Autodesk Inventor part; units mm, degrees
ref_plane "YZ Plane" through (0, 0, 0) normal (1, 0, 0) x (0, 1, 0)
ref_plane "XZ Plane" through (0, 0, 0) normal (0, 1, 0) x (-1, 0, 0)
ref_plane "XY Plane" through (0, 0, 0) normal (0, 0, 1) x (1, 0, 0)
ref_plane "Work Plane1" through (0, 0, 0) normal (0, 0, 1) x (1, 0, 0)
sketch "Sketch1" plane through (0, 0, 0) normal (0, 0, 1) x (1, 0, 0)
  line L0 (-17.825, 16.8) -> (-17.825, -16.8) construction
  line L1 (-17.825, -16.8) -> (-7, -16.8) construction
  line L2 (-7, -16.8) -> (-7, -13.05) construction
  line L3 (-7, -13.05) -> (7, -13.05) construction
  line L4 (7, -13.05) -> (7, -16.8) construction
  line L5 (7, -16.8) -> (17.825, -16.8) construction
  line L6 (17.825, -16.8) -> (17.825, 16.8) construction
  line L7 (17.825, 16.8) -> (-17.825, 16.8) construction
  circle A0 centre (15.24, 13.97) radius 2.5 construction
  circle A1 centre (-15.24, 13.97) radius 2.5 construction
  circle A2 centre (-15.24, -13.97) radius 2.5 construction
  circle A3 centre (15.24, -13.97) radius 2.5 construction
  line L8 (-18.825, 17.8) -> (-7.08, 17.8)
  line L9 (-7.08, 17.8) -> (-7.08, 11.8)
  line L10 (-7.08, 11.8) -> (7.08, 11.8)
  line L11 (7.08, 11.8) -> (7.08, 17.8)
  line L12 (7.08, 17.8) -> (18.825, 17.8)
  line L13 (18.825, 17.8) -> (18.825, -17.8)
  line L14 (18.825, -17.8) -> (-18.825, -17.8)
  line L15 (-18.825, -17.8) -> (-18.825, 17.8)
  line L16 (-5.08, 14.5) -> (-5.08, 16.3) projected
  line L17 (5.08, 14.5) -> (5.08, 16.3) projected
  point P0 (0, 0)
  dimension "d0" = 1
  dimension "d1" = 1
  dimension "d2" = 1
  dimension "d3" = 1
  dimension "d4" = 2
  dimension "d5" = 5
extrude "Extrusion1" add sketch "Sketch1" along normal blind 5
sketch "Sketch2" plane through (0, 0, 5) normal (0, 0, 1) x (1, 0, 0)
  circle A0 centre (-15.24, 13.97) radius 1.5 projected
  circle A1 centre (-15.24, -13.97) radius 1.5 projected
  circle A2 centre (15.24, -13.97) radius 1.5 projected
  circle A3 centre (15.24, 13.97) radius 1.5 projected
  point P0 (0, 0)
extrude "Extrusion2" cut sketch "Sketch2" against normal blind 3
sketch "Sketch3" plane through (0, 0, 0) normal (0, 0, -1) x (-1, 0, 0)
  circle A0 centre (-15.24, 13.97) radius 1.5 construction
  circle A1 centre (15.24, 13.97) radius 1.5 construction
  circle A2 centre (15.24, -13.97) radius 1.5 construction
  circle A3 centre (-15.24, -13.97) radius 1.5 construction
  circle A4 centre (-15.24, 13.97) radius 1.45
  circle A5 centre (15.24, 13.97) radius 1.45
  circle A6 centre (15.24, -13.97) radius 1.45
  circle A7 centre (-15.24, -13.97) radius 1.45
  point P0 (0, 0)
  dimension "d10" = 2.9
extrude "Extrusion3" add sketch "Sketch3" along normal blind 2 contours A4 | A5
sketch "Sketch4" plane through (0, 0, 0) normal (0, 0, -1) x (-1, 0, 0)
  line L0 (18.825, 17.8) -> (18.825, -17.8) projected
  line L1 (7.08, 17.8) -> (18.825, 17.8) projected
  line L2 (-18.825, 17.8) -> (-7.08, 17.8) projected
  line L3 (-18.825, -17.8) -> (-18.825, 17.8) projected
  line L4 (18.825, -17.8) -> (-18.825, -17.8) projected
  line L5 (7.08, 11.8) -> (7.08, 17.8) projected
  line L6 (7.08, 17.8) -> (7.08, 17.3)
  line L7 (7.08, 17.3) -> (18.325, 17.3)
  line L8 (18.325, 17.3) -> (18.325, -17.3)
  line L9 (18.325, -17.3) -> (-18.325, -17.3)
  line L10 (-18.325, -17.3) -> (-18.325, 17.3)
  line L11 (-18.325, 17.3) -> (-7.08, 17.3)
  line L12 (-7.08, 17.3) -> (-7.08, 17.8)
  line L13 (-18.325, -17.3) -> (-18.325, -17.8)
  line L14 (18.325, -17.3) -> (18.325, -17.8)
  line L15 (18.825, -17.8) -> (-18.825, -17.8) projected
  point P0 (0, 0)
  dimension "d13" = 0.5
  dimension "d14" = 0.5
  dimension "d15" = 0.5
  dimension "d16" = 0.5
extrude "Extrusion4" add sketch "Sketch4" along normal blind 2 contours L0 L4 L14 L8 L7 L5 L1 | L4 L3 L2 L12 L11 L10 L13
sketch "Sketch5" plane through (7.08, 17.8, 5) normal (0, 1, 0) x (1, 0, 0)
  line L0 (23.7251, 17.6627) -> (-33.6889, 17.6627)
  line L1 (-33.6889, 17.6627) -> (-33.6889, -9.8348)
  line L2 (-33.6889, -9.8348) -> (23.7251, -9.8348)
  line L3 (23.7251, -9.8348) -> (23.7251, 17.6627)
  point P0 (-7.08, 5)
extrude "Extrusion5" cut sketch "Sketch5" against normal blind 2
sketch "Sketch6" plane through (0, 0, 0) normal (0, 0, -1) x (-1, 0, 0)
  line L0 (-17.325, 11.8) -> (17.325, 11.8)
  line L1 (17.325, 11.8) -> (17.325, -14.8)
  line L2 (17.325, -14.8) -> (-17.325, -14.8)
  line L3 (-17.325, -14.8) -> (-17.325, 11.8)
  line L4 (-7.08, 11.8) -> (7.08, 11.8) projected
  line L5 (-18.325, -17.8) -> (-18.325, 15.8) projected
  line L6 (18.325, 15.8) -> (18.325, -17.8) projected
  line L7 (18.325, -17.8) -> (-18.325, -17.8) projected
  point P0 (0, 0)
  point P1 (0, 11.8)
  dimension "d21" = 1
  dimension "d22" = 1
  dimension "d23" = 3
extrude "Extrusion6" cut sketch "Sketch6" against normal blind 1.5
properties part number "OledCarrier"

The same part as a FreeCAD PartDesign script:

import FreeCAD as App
import Part
import Sketcher
Q = App.Units.Quantity

doc = App.newDocument("Part")
body = doc.addObject("PartDesign::Body", "Body")

# Sketch on XY plane
sketch1 = body.newObject("Sketcher::SketchObject", "Sketch")
sketch1.AttachmentSupport = (doc.getObject("XY_Plane"), [""])
sketch1.MapMode = "FlatFace"
sketch1.addGeometry([
    Part.LineSegment(App.Vector(-7, 18, 0), App.Vector(-19, 18, 0)),  # 0
    Part.LineSegment(App.Vector(-19, 18, 0), App.Vector(-19, -18, 0)),  # 1
    Part.LineSegment(App.Vector(-19, -18, 0), App.Vector(19, -18, 0)),  # 2
    Part.LineSegment(App.Vector(19, -18, 0), App.Vector(19, 18, 0)),  # 3
    Part.LineSegment(App.Vector(19, 18, 0), App.Vector(7, 18, 0)),  # 4
    Part.LineSegment(App.Vector(7, 18, 0), App.Vector(7, 12, 0)),  # 5
    Part.LineSegment(App.Vector(7, 12, 0), App.Vector(-7, 12, 0)),  # 6
    Part.LineSegment(App.Vector(-7, 12, 0), App.Vector(-7, 18, 0)),  # 7
], False)
sketch1.addConstraint([
    Sketcher.Constraint("Coincident", 0, 2, 1, 1),
    Sketcher.Constraint("Coincident", 1, 2, 2, 1),
    Sketcher.Constraint("Coincident", 2, 2, 3, 1),
    Sketcher.Constraint("Coincident", 3, 2, 4, 1),
    Sketcher.Constraint("Coincident", 4, 2, 5, 1),
    Sketcher.Constraint("Coincident", 5, 2, 6, 1),
    Sketcher.Constraint("Coincident", 6, 2, 7, 1),
    Sketcher.Constraint("Coincident", 7, 2, 0, 1),
    Sketcher.Constraint("Horizontal", 0),
    Sketcher.Constraint("Vertical", 1),
    Sketcher.Constraint("Horizontal", 2),
    Sketcher.Constraint("Vertical", 3),
    Sketcher.Constraint("Horizontal", 4),
    Sketcher.Constraint("Vertical", 5),
    Sketcher.Constraint("Horizontal", 6),
    Sketcher.Constraint("Vertical", 7),
    Sketcher.Constraint("Symmetric", 0, 2, 2, 2, -1, 1),
    Sketcher.Constraint("Symmetric", 4, 2, 7, 2, -2),
    Sketcher.Constraint("DistanceY", 5, 2, 5, 1, Q("6 mm")),
    Sketcher.Constraint("DistanceY", 1, 2, 1, 1, Q("35.6 mm")),
    Sketcher.Constraint("DistanceX", 2, 1, 2, 2, Q("37.65 mm")),
    Sketcher.Constraint("DistanceX", 6, 2, 6, 1, Q("14.16 mm")),
])
pad1 = body.newObject("PartDesign::Pad", "Pad")
pad1.Profile = sketch1
pad1.Length = 5

# Sketch on XY plane
sketch2 = body.newObject("Sketcher::SketchObject", "Sketch001")
sketch2.AttachmentSupport = (doc.getObject("XY_Plane"), [""])
sketch2.MapMode = "FlatFace"
sketch2.AttachmentOffset = App.Placement(App.Vector(0, 0, 5), App.Rotation())
sketch2.addGeometry([
    Part.Circle(App.Vector(-15.2, 14, 0), App.Vector(0, 0, 1), 1.5),
    Part.Circle(App.Vector(-15.2, -14, 0), App.Vector(0, 0, 1), 1.5),
    Part.Circle(App.Vector(15.2, -14, 0), App.Vector(0, 0, 1), 1.5),
    Part.Circle(App.Vector(15.2, 14, 0), App.Vector(0, 0, 1), 1.5),
], False)
sketch2.addConstraint([
    Sketcher.Constraint("Equal", 0, 1),
    Sketcher.Constraint("Equal", 1, 2),
    Sketcher.Constraint("Equal", 2, 3),
    Sketcher.Constraint("Symmetric", 0, 3, 2, 3, -1, 1),
    Sketcher.Constraint("Symmetric", 1, 3, 3, 3, -1, 1),
    Sketcher.Constraint("Symmetric", 1, 3, 2, 3, -2),
    Sketcher.Constraint("Diameter", 0, Q("3 mm")),
    Sketcher.Constraint("DistanceX", 0, 3, -1, 1, Q("15.24 mm")),
    Sketcher.Constraint("DistanceY", -1, 1, 0, 3, Q("13.97 mm")),
])
pocket1 = body.newObject("PartDesign::Pocket", "Pocket")
pocket1.Profile = sketch2
pocket1.Length = 3

# Sketch on XY plane
sketch3 = body.newObject("Sketcher::SketchObject", "Sketch002")
sketch3.AttachmentSupport = (doc.getObject("XY_Plane"), [""])
sketch3.MapMode = "FlatFace"
sketch3.addGeometry([
    Part.Circle(App.Vector(15.2, 14, 0), App.Vector(0, 0, 1), 1.4),
    Part.Circle(App.Vector(-15.2, 14, 0), App.Vector(0, 0, 1), 1.4),
], False)
sketch3.addConstraint([
    Sketcher.Constraint("Equal", 0, 1),
    Sketcher.Constraint("Symmetric", 0, 3, 1, 3, -2),
    Sketcher.Constraint("Diameter", 0, Q("2.9 mm")),
    Sketcher.Constraint("DistanceX", -1, 1, 0, 3, Q("15.24 mm")),
    Sketcher.Constraint("DistanceY", -1, 1, 0, 3, Q("13.97 mm")),
])
pad2 = body.newObject("PartDesign::Pad", "Pad001")
pad2.Profile = sketch3
pad2.Length = 2
pad2.Reversed = True

# Sketch on XY plane
sketch4 = body.newObject("Sketcher::SketchObject", "Sketch003")
sketch4.AttachmentSupport = (doc.getObject("XY_Plane"), [""])
sketch4.MapMode = "FlatFace"
sketch4.addGeometry([
    Part.LineSegment(App.Vector(-18.8, -17.8, 0), App.Vector(-18.8, 17.8, 0)),  # 0
    Part.LineSegment(App.Vector(-18.8, 17.8, 0), App.Vector(-7.1, 17.8, 0)),  # 1
    Part.LineSegment(App.Vector(-7.1, 17.8, 0), App.Vector(-7.1, 17.3, 0)),  # 2
    Part.LineSegment(App.Vector(-7.1, 17.3, 0), App.Vector(-18.3, 17.3, 0)),  # 3
    Part.LineSegment(App.Vector(-18.3, 17.3, 0), App.Vector(-18.3, -17.8, 0)),  # 4
    Part.LineSegment(App.Vector(-18.3, -17.8, 0), App.Vector(-18.8, -17.8, 0)),  # 5
    Part.LineSegment(App.Vector(18.8, -17.8, 0), App.Vector(18.3, -17.8, 0)),  # 6
    Part.LineSegment(App.Vector(18.3, -17.8, 0), App.Vector(18.3, 17.3, 0)),  # 7
    Part.LineSegment(App.Vector(18.3, 17.3, 0), App.Vector(7.1, 17.3, 0)),  # 8
    Part.LineSegment(App.Vector(7.1, 17.3, 0), App.Vector(7.1, 17.8, 0)),  # 9
    Part.LineSegment(App.Vector(7.1, 17.8, 0), App.Vector(18.8, 17.8, 0)),  # 10
    Part.LineSegment(App.Vector(18.8, 17.8, 0), App.Vector(18.8, -17.8, 0)),  # 11
], False)
sketch4.addConstraint([
    Sketcher.Constraint("Coincident", 0, 2, 1, 1),
    Sketcher.Constraint("Coincident", 1, 2, 2, 1),
    Sketcher.Constraint("Coincident", 2, 2, 3, 1),
    Sketcher.Constraint("Coincident", 3, 2, 4, 1),
    Sketcher.Constraint("Coincident", 4, 2, 5, 1),
    Sketcher.Constraint("Coincident", 5, 2, 0, 1),
    Sketcher.Constraint("Coincident", 6, 2, 7, 1),
    Sketcher.Constraint("Coincident", 7, 2, 8, 1),
    Sketcher.Constraint("Coincident", 8, 2, 9, 1),
    Sketcher.Constraint("Coincident", 9, 2, 10, 1),
    Sketcher.Constraint("Coincident", 10, 2, 11, 1),
    Sketcher.Constraint("Coincident", 11, 2, 6, 1),
    Sketcher.Constraint("Vertical", 0),
    Sketcher.Constraint("Horizontal", 1),
    Sketcher.Constraint("Vertical", 2),
    Sketcher.Constraint("Horizontal", 3),
    Sketcher.Constraint("Vertical", 4),
    Sketcher.Constraint("Horizontal", 5),
    Sketcher.Constraint("Horizontal", 6),
    Sketcher.Constraint("Vertical", 7),
    Sketcher.Constraint("Horizontal", 8),
    Sketcher.Constraint("Vertical", 9),
    Sketcher.Constraint("Horizontal", 10),
    Sketcher.Constraint("Vertical", 11),
    Sketcher.Constraint("Symmetric", 5, 2, 10, 2, -1, 1),
    Sketcher.Constraint("Symmetric", 4, 2, 6, 2, -2),
    Sketcher.Constraint("Symmetric", 2, 2, 8, 2, -2),
    Sketcher.Constraint("Horizontal", 1, 2, 9, 2),
    Sketcher.Constraint("Equal", 6, 2),
    Sketcher.Constraint("DistanceX", 5, 2, 5, 1, Q("0.5 mm")),
    Sketcher.Constraint("DistanceY", 0, 1, 0, 2, Q("35.6 mm")),
    Sketcher.Constraint("DistanceX", 1, 1, 1, 2, Q("11.745 mm")),
    Sketcher.Constraint("DistanceX", 1, 2, -1, 1, Q("7.08 mm")),
])
pad3 = body.newObject("PartDesign::Pad", "Pad002")
pad3.Profile = sketch4
pad3.Length = 2
pad3.Reversed = True

# Sketch on XZ plane
sketch5 = body.newObject("Sketcher::SketchObject", "Sketch004")
sketch5.AttachmentSupport = (doc.getObject("XZ_Plane"), [""])
sketch5.MapMode = "FlatFace"
sketch5.AttachmentOffset = App.Placement(App.Vector(0, 0, -17.8), App.Rotation())
sketch5.addGeometry([
    Part.LineSegment(App.Vector(31, 15, 0), App.Vector(31, -13, 0)),
    Part.LineSegment(App.Vector(31, -13, 0), App.Vector(-27, -13, 0)),
    Part.LineSegment(App.Vector(-27, -13, 0), App.Vector(-27, 15, 0)),
    Part.LineSegment(App.Vector(-27, 15, 0), App.Vector(31, 15, 0)),
], False)
sketch5.addConstraint([
    Sketcher.Constraint("Coincident", 0, 2, 1, 1),
    Sketcher.Constraint("Coincident", 1, 2, 2, 1),
    Sketcher.Constraint("Coincident", 2, 2, 3, 1),
    Sketcher.Constraint("Coincident", 3, 2, 0, 1),
    Sketcher.Constraint("Vertical", 0),
    Sketcher.Constraint("Horizontal", 1),
    Sketcher.Constraint("Vertical", 2),
    Sketcher.Constraint("Horizontal", 3),
    Sketcher.Constraint("DistanceX", 1, 2, 1, 1, Q("57.414 mm")),
    Sketcher.Constraint("DistanceY", 0, 2, 0, 1, Q("27.4975 mm")),
    Sketcher.Constraint("DistanceX", -1, 1, 0, 2, Q("30.805 mm")),
    Sketcher.Constraint("DistanceY", 0, 2, -1, 1, Q("12.6627 mm")),
])
pocket2 = body.newObject("PartDesign::Pocket", "Pocket001")
pocket2.Profile = sketch5
pocket2.Length = 2
pocket2.Reversed = True

# Sketch on XY plane
sketch6 = body.newObject("Sketcher::SketchObject", "Sketch005")
sketch6.AttachmentSupport = (doc.getObject("XY_Plane"), [""])
sketch6.MapMode = "FlatFace"
sketch6.addGeometry([
    Part.LineSegment(App.Vector(-17, 12, 0), App.Vector(17, 12, 0)),
    Part.LineSegment(App.Vector(17, 12, 0), App.Vector(17, -15, 0)),
    Part.LineSegment(App.Vector(17, -15, 0), App.Vector(-17, -15, 0)),
    Part.LineSegment(App.Vector(-17, -15, 0), App.Vector(-17, 12, 0)),
], False)
sketch6.addConstraint([
    Sketcher.Constraint("Coincident", 0, 2, 1, 1),
    Sketcher.Constraint("Coincident", 1, 2, 2, 1),
    Sketcher.Constraint("Coincident", 2, 2, 3, 1),
    Sketcher.Constraint("Coincident", 3, 2, 0, 1),
    Sketcher.Constraint("Horizontal", 0),
    Sketcher.Constraint("Vertical", 1),
    Sketcher.Constraint("Horizontal", 2),
    Sketcher.Constraint("Vertical", 3),
    Sketcher.Constraint("DistanceY", 1, 2, 1, 1, Q("26.6 mm")),
    Sketcher.Constraint("DistanceX", 0, 1, 0, 2, Q("34.65 mm")),
    Sketcher.Constraint("DistanceY", -1, 1, 0, 2, Q("11.8 mm")),
    Sketcher.Constraint("DistanceX", -1, 1, 0, 2, Q("17.325 mm")),
])
pocket3 = body.newObject("PartDesign::Pocket", "Pocket002")
pocket3.Profile = sketch6
pocket3.Length = 1.5
pocket3.Reversed = True

doc.recompute()
